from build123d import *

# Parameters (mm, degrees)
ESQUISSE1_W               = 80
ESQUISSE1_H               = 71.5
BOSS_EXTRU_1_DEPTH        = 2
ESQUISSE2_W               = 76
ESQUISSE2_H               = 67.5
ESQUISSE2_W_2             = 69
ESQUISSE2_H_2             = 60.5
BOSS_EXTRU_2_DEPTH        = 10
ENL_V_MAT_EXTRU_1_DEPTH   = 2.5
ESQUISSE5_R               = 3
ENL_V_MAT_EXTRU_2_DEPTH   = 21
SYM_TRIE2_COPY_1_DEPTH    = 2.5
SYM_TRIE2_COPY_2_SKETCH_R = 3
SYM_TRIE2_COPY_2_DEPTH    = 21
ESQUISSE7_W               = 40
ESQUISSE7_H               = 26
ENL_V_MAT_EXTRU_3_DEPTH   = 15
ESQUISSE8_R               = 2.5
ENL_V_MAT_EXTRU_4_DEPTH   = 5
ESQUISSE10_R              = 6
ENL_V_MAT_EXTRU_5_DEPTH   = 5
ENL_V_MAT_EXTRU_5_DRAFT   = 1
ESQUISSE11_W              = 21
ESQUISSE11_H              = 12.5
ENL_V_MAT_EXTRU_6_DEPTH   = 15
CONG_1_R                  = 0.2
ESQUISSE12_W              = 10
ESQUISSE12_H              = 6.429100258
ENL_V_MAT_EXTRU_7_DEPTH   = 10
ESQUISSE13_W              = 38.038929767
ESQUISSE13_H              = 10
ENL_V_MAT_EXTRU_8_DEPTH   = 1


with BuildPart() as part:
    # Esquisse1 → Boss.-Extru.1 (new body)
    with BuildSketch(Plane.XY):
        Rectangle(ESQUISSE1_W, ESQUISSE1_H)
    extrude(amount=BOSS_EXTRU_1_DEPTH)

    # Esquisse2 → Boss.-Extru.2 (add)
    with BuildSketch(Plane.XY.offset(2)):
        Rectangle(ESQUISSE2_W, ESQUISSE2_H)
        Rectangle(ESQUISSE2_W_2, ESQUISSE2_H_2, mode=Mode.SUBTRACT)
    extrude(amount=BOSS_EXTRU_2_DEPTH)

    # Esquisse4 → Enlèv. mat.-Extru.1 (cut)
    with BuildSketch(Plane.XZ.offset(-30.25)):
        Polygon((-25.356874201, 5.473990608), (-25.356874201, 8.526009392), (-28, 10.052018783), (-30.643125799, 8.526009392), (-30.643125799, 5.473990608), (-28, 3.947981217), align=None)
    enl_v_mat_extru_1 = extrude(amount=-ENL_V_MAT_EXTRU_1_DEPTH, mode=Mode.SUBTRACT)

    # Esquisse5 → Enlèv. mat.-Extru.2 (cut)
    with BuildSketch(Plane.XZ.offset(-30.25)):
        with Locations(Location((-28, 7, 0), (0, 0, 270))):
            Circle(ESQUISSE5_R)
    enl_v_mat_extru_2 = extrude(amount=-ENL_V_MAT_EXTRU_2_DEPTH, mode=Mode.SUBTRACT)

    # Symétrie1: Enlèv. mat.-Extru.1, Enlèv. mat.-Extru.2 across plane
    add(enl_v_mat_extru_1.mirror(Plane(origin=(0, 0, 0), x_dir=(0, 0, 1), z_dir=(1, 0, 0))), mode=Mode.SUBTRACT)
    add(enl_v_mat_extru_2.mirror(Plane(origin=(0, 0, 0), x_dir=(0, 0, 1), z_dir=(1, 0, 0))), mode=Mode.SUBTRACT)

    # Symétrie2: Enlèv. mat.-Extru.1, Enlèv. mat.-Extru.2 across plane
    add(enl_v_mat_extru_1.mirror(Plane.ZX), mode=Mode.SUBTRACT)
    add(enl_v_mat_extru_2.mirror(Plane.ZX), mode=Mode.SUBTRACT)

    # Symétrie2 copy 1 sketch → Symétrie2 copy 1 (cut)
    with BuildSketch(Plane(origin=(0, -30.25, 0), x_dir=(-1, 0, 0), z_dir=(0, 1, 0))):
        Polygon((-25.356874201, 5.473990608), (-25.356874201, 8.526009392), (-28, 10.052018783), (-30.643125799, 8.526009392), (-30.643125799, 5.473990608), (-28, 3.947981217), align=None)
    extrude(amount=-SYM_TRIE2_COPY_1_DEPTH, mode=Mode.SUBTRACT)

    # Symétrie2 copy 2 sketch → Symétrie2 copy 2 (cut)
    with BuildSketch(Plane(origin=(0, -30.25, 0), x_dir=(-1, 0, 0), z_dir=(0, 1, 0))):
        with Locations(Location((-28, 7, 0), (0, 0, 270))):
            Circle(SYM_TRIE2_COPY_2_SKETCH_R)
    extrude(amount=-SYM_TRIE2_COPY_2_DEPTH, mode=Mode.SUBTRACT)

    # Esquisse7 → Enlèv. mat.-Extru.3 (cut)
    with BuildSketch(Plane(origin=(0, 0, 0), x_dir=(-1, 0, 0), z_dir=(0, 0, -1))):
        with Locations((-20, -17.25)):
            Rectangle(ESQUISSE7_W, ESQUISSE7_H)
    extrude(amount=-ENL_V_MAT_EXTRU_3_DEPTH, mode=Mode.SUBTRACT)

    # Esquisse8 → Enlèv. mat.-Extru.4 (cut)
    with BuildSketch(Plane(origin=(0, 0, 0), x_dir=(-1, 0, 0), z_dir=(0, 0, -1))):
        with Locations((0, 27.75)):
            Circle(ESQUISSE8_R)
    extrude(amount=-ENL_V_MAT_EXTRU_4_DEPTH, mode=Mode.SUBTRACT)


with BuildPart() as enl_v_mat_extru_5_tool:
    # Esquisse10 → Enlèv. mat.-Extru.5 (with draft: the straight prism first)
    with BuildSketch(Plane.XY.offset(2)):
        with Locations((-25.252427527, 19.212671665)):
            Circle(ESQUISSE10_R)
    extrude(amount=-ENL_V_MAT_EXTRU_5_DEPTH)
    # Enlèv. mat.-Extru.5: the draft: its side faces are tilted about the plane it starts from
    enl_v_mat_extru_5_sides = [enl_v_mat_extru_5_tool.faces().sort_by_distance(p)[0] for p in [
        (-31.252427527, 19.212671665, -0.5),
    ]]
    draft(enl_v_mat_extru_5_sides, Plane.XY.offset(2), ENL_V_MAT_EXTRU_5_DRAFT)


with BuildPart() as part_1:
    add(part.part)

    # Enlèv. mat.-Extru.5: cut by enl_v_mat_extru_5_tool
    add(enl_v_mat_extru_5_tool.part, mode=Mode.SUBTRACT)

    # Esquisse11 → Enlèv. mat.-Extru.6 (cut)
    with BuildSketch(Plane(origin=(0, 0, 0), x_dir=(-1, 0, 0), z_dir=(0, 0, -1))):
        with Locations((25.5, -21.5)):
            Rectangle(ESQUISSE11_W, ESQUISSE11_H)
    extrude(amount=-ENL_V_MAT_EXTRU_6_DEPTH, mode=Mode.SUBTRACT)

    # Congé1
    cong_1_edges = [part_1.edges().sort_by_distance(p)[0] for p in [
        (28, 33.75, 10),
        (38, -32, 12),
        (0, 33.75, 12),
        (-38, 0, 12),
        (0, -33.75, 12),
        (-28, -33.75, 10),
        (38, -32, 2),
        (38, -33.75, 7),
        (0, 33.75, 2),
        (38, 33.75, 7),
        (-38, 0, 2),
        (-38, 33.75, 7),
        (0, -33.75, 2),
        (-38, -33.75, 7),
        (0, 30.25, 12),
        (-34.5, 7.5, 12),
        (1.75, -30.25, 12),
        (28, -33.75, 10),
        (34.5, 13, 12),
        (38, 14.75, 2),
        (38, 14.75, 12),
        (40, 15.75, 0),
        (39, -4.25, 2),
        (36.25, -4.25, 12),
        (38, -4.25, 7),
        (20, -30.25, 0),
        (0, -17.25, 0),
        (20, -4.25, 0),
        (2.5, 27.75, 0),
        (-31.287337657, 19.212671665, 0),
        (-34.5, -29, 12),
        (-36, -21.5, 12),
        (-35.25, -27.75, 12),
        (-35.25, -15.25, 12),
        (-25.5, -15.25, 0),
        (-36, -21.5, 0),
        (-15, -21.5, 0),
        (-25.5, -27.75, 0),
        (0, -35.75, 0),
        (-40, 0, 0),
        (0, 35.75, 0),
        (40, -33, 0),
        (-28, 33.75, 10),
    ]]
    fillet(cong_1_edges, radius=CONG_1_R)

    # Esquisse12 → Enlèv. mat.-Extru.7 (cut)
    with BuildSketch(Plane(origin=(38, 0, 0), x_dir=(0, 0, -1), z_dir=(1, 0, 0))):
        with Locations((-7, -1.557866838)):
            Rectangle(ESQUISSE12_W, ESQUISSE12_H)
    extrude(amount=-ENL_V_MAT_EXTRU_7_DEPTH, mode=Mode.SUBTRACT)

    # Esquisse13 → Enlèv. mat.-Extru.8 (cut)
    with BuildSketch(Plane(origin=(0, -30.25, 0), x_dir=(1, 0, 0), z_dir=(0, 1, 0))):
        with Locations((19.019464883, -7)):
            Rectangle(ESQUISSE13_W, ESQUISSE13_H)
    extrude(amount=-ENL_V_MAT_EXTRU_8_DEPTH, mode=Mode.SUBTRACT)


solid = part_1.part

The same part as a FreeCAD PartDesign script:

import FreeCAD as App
import Part
import Sketcher
Q = App.Units.Quantity


def edges_at(feature, points):
    """Names of the edges that pass closest to the given points."""
    edges = feature.Shape.Edges
    near = lambda p: min(range(len(edges)), key=lambda i: edges[i].distToShape(Part.Vertex(*p))[0])
    return sorted({f"Edge{near(p) + 1}" for p in points})


def faces_at(feature, points):
    """Names of the faces that lie closest to the given points."""
    faces = feature.Shape.Faces
    near = lambda p: min(range(len(faces)), key=lambda i: faces[i].distToShape(Part.Vertex(*p))[0])
    return sorted({f"Face{near(p) + 1}" for p in points})


def add_polygon(sketch, points):
    """Adds a closed chain of lines whose ends are joined by coincident constraints."""
    first, n = sketch.GeometryCount, len(points)
    for a, b in zip(points, points[1:] + points[:1]):
        sketch.addGeometry(Part.LineSegment(App.Vector(*a, 0), App.Vector(*b, 0)), False)
    for i in range(n):
        sketch.addConstraint(Sketcher.Constraint("Coincident", first + i, 2, first + (i + 1) % n, 1))

doc = App.newDocument("Part")
body = doc.addObject("PartDesign::Body", "Body")

# Sketch on XY plane
sketch1 = body.newObject("Sketcher::SketchObject", "Sketch")
sketch1.AttachmentSupport = (doc.getObject("XY_Plane"), [""])
sketch1.MapMode = "FlatFace"
add_polygon(sketch1, [(-40, 35.75), (-40, -35.75), (40, -35.75), (40, 35.75)])  # lines 0-3
sketch1.addConstraint([
    Sketcher.Constraint("Vertical", 0),
    Sketcher.Constraint("Horizontal", 1),
    Sketcher.Constraint("Vertical", 2),
    Sketcher.Constraint("Horizontal", 3),
    Sketcher.Constraint("Symmetric", 0, 2, 2, 2, -1, 1),
    Sketcher.Constraint("DistanceX", 1, 1, 1, 2, 80.0),
    Sketcher.Constraint("DistanceY", 0, 2, 0, 1, 71.5),
])
pad1 = body.newObject("PartDesign::Pad", "Pad")
pad1.Profile = sketch1
pad1.Length = 2

# Sketch on XY plane
sketch2 = body.newObject("Sketcher::SketchObject", "Sketch001")
sketch2.AttachmentSupport = (doc.getObject("XY_Plane"), [""])
sketch2.MapMode = "FlatFace"
sketch2.AttachmentOffset = App.Placement(App.Vector(0, 0, 2), App.Rotation())
add_polygon(sketch2, [(-38, 33.75), (-38, -33.75), (38, -33.75), (38, 33.75)])  # lines 0-3
add_polygon(sketch2, [(34.5, -30.25), (-34.5, -30.25), (-34.5, 30.25), (34.5, 30.25)])  # lines 4-7
sketch2.addConstraint([
    Sketcher.Constraint("Vertical", 0),
    Sketcher.Constraint("Horizontal", 1),
    Sketcher.Constraint("Vertical", 2),
    Sketcher.Constraint("Horizontal", 3),
    Sketcher.Constraint("Horizontal", 4),
    Sketcher.Constraint("Vertical", 5),
    Sketcher.Constraint("Horizontal", 6),
    Sketcher.Constraint("Vertical", 7),
    Sketcher.Constraint("Symmetric", 0, 2, 2, 2, -1, 1),
    Sketcher.Constraint("Symmetric", 4, 2, 6, 2, -1, 1),
    Sketcher.Constraint("DistanceX", 1, 1, 1, 2, 76.0),
    Sketcher.Constraint("DistanceX", 4, 2, 4, 1, 69.0),
    Sketcher.Constraint("DistanceY", 0, 2, 0, 1, 67.5),
    Sketcher.Constraint("DistanceY", 5, 1, 5, 2, 60.5),
])
pad2 = body.newObject("PartDesign::Pad", "Pad001")
pad2.Profile = sketch2
pad2.Length = 10

# Sketch on XZ plane
sketch3 = body.newObject("Sketcher::SketchObject", "Sketch002")
sketch3.AttachmentSupport = (doc.getObject("XZ_Plane"), [""])
sketch3.MapMode = "FlatFace"
sketch3.AttachmentOffset = App.Placement(App.Vector(0, 0, -30.25), App.Rotation())
add_polygon(sketch3, [(-25.356874, 5.473991), (-25.356874, 8.526009), (-28, 10.052019), (-30.643126, 8.526009), (-30.643126, 5.473991), (-28, 3.947981)])  # lines 0-5
sketch3.addConstraint([
    Sketcher.Constraint("Vertical", 0),
    Sketcher.Constraint("Vertical", 3),
    Sketcher.Constraint("Parallel", 1, 4),
    Sketcher.Constraint("Parallel", 2, 5),
    Sketcher.Constraint("Horizontal", 0, 2, 2, 2),
    Sketcher.Constraint("Horizontal", 3, 2, 5, 2),
    Sketcher.Constraint("Vertical", 1, 2, 4, 2),
    Sketcher.Constraint("Angle", 1, Q("150 deg")),
    Sketcher.Constraint("DistanceX", 1, 2, -1, 1, 28.0),
    Sketcher.Constraint("DistanceY", 0, 1, 0, 2, 3.052019),
    Sketcher.Constraint("Distance", 1, 3.052019),
    Sketcher.Constraint("DistanceY", -1, 1, 0, 2, 8.526009),
])
pocket1 = body.newObject("PartDesign::Pocket", "Pocket")
pocket1.Profile = sketch3
pocket1.Length = 2.5

# Sketch on XZ plane
sketch4 = body.newObject("Sketcher::SketchObject", "Sketch003")
sketch4.AttachmentSupport = (doc.getObject("XZ_Plane"), [""])
sketch4.MapMode = "FlatFace"
sketch4.AttachmentOffset = App.Placement(App.Vector(0, 0, -30.25), App.Rotation())
sketch4.addGeometry(Part.Circle(App.Vector(-28, 7, 0), App.Vector(0, 0, 1), 3), False)
sketch4.addConstraint([
    Sketcher.Constraint("Diameter", 0, 6.0),
    Sketcher.Constraint("DistanceX", 0, 3, -1, 1, 28.0),
    Sketcher.Constraint("DistanceY", -1, 1, 0, 3, 7.0),
])
pocket2 = body.newObject("PartDesign::Pocket", "Pocket001")
pocket2.Profile = sketch4
pocket2.Length = 21
doc.recompute()

mirrored = body.newObject("PartDesign::Mirrored", "Mirrored")
mirrored.Originals = [pocket1, pocket2]
mirrored.MirrorPlane = (doc.getObject("YZ_Plane"), [""])
body.Tip = mirrored
doc.recompute()

mirrored2 = body.newObject("PartDesign::Mirrored", "Mirrored001")
mirrored2.Originals = [pocket1, pocket2]
mirrored2.MirrorPlane = (doc.getObject("XZ_Plane"), [""])
body.Tip = mirrored2

# Sketch on XZ plane
sketch5 = body.newObject("Sketcher::SketchObject", "Sketch004")
sketch5.AttachmentSupport = (doc.getObject("XZ_Plane"), [""])
sketch5.MapMode = "FlatFace"
sketch5.AttachmentOffset = App.Placement(App.Vector(0, 0, 30.25), App.Rotation())
add_polygon(sketch5, [(25.356874, 5.473991), (25.356874, 8.526009), (28, 10.052019), (30.643126, 8.526009), (30.643126, 5.473991), (28, 3.947981)])  # lines 0-5
sketch5.addConstraint([
    Sketcher.Constraint("Vertical", 0),
    Sketcher.Constraint("Vertical", 3),
    Sketcher.Constraint("Parallel", 1, 4),
    Sketcher.Constraint("Parallel", 2, 5),
    Sketcher.Constraint("Horizontal", 0, 2, 2, 2),
    Sketcher.Constraint("Horizontal", 3, 2, 5, 2),
    Sketcher.Constraint("Vertical", 1, 2, 4, 2),
    Sketcher.Constraint("Angle", 1, Q("30 deg")),
    Sketcher.Constraint("DistanceX", -1, 1, 1, 2, 28.0),
    Sketcher.Constraint("DistanceY", 0, 1, 0, 2, 3.052019),
    Sketcher.Constraint("Distance", 1, 3.052019),
    Sketcher.Constraint("DistanceY", -1, 1, 0, 2, 8.526009),
])
pocket3 = body.newObject("PartDesign::Pocket", "Pocket002")
pocket3.Profile = sketch5
pocket3.Length = 2.5
pocket3.Reversed = True

# Sketch on XZ plane
sketch6 = body.newObject("Sketcher::SketchObject", "Sketch005")
sketch6.AttachmentSupport = (doc.getObject("XZ_Plane"), [""])
sketch6.MapMode = "FlatFace"
sketch6.AttachmentOffset = App.Placement(App.Vector(0, 0, 30.25), App.Rotation())
sketch6.addGeometry(Part.Circle(App.Vector(28, 7, 0), App.Vector(0, 0, 1), 3), False)
sketch6.addConstraint([
    Sketcher.Constraint("Diameter", 0, 6.0),
    Sketcher.Constraint("DistanceX", -1, 1, 0, 3, 28.0),
    Sketcher.Constraint("DistanceY", -1, 1, 0, 3, 7.0),
])
pocket4 = body.newObject("PartDesign::Pocket", "Pocket003")
pocket4.Profile = sketch6
pocket4.Length = 21
pocket4.Reversed = True

# Sketch on XY plane
sketch7 = body.newObject("Sketcher::SketchObject", "Sketch006")
sketch7.AttachmentSupport = (doc.getObject("XY_Plane"), [""])
sketch7.MapMode = "FlatFace"
add_polygon(sketch7, [(40, -4.25), (40, -30.25), (0, -30.25), (0, -4.25)])  # lines 0-3
sketch7.addConstraint([
    Sketcher.Constraint("Vertical", 0),
    Sketcher.Constraint("Horizontal", 1),
    Sketcher.Constraint("Vertical", 2),
    Sketcher.Constraint("Horizontal", 3),
    Sketcher.Constraint("PointOnObject", 1, 2, -2),
    Sketcher.Constraint("DistanceX", 1, 2, 1, 1, 40.0),
    Sketcher.Constraint("DistanceY", 0, 2, 0, 1, 26.0),
    Sketcher.Constraint("DistanceY", 0, 2, -1, 1, 30.25),
])
pocket5 = body.newObject("PartDesign::Pocket", "Pocket004")
pocket5.Profile = sketch7
pocket5.Length = 15
pocket5.Reversed = True

# Sketch on XY plane
sketch8 = body.newObject("Sketcher::SketchObject", "Sketch007")
sketch8.AttachmentSupport = (doc.getObject("XY_Plane"), [""])
sketch8.MapMode = "FlatFace"
sketch8.addGeometry(Part.Circle(App.Vector(0, 27.75, 0), App.Vector(0, 0, 1), 2.5), False)
sketch8.addConstraint([
    Sketcher.Constraint("PointOnObject", 0, 3, -2),
    Sketcher.Constraint("Diameter", 0, 5.0),
    Sketcher.Constraint("DistanceY", -1, 1, 0, 3, 27.75),
])
pocket6 = body.newObject("PartDesign::Pocket", "Pocket005")
pocket6.Profile = sketch8
pocket6.Length = 5
pocket6.Reversed = True
body2 = doc.addObject("PartDesign::Body", "Body001")

# Sketch on XY plane
sketch9 = body2.newObject("Sketcher::SketchObject", "Sketch008")
sketch9.AttachmentSupport = (doc.getObject("XY_Plane001"), [""])
sketch9.MapMode = "FlatFace"
sketch9.AttachmentOffset = App.Placement(App.Vector(0, 0, 2), App.Rotation())
sketch9.addGeometry(Part.Circle(App.Vector(-25.252428, 19.212672, 0), App.Vector(0, 0, 1), 6), False)
sketch9.addConstraint([
    Sketcher.Constraint("Diameter", 0, 12.0),
    Sketcher.Constraint("DistanceY", -1, 1, 0, 3, 19.212672),
    Sketcher.Constraint("DistanceX", 0, 3, -1, 1, 25.252428),
])
pad3 = body2.newObject("PartDesign::Pad", "Pad002")
pad3.Profile = sketch9
pad3.Length = 5
pad3.Reversed = True
doc.recompute()

datumplane = body2.newObject("PartDesign::Plane", "DatumPlane")
datumplane.AttachmentSupport = (doc.getObject("XY_Plane001"), [""])
datumplane.MapMode = "FlatFace"
datumplane.AttachmentOffset = App.Placement(App.Vector(0, 0, 2), App.Rotation())
draft = body2.newObject("PartDesign::Draft", "Draft")
draft.Base = (pad3, faces_at(pad3, [(-31.252, 19.213, -0.5)]))
draft.NeutralPlane = (datumplane, [""])
draft.Angle = 1
draft.Reversed = False
doc.recompute()

boolean = body.newObject("PartDesign::Boolean", "Boolean")
boolean.Type = "Cut"
boolean.addObjects([body2])

# Sketch on XY plane
sketch10 = body.newObject("Sketcher::SketchObject", "Sketch009")
sketch10.AttachmentSupport = (doc.getObject("XY_Plane"), [""])
sketch10.MapMode = "FlatFace"
add_polygon(sketch10, [(-15, -15.25), (-15, -27.75), (-36, -27.75), (-36, -15.25)])  # lines 0-3
sketch10.addConstraint([
    Sketcher.Constraint("Vertical", 0),
    Sketcher.Constraint("Horizontal", 1),
    Sketcher.Constraint("Vertical", 2),
    Sketcher.Constraint("Horizontal", 3),
    Sketcher.Constraint("DistanceX", 1, 2, 1, 1, 21.0),
    Sketcher.Constraint("DistanceY", 0, 2, 0, 1, 12.5),
    Sketcher.Constraint("DistanceX", 0, 2, -1, 1, 15.0),
    Sketcher.Constraint("DistanceY", 0, 2, -1, 1, 27.75),
])
pocket7 = body.newObject("PartDesign::Pocket", "Pocket006")
pocket7.Profile = sketch10
pocket7.Length = 15
pocket7.Reversed = True
doc.recompute()

fillet = body.newObject("PartDesign::Fillet", "Fillet")
fillet.Base = (pocket7, edges_at(pocket7, [
    (28, 33.75, 10),
    (38, -32, 12),
    (0, 33.75, 12),
    (-38, 0, 12),
    (0, -33.75, 12),
    (-28, -33.75, 10),
    (38, -32, 2),
    (38, -33.75, 7),
    (0, 33.75, 2),
    (38, 33.75, 7),
    (-38, 0, 2),
    (-38, 33.75, 7),
    (0, -33.75, 2),
    (-38, -33.75, 7),
    (0, 30.25, 12),
    (-34.5, 7.5, 12),
    (1.75, -30.25, 12),
    (28, -33.75, 10),
    (34.5, 13, 12),
    (38, 14.75, 2),
    (38, 14.75, 12),
    (40, 15.75, 0),
    (39, -4.25, 2),
    (36.25, -4.25, 12),
    (38, -4.25, 7),
    (20, -30.25, 0),
    (0, -17.25, 0),
    (20, -4.25, 0),
    (2.5, 27.75, 0),
    (-31.287, 19.213, 0),
    (-34.5, -29, 12),
    (-36, -21.5, 12),
    (-35.25, -27.75, 12),
    (-35.25, -15.25, 12),
    (-25.5, -15.25, 0),
    (-36, -21.5, 0),
    (-15, -21.5, 0),
    (-25.5, -27.75, 0),
    (0, -35.75, 0),
    (-40, 0, 0),
    (0, 35.75, 0),
    (40, -33, 0),
    (-28, 33.75, 10),
]))
fillet.Radius = 0.2

# Sketch on YZ plane
sketch11 = body.newObject("Sketcher::SketchObject", "Sketch010")
sketch11.AttachmentSupport = (doc.getObject("YZ_Plane"), [""])
sketch11.MapMode = "FlatFace"
sketch11.AttachmentOffset = App.Placement(App.Vector(0, 0, 38), App.Rotation())
add_polygon(sketch11, [(1.656683, 12), (-4.772417, 12), (-4.772417, 2), (1.656683, 2)])  # lines 0-3
sketch11.addConstraint([
    Sketcher.Constraint("Horizontal", 0),
    Sketcher.Constraint("Vertical", 1),
    Sketcher.Constraint("Horizontal", 2),
    Sketcher.Constraint("Vertical", 3),
    Sketcher.Constraint("DistanceY", 1, 2, 1, 1, 10.0),
    Sketcher.Constraint("DistanceY", -1, 1, 0, 2, 12.0),
    Sketcher.Constraint("DistanceX", 0, 2, 0, 1, 6.4291),
    Sketcher.Constraint("DistanceX", 0, 2, -1, 1, 4.772417),
])
pocket8 = body.newObject("PartDesign::Pocket", "Pocket007")
pocket8.Profile = sketch11
pocket8.Length = 10

# Sketch on XZ plane
sketch12 = body.newObject("Sketcher::SketchObject", "Sketch011")
sketch12.AttachmentSupport = (doc.getObject("XZ_Plane"), [""])
sketch12.MapMode = "FlatFace"
sketch12.AttachmentOffset = App.Placement(App.Vector(0, 0, 30.25), App.Rotation())
add_polygon(sketch12, [(0, 2), (0, 12), (38.03893, 12), (38.03893, 2)])  # lines 0-3
sketch12.addConstraint([
    Sketcher.Constraint("Vertical", 0),
    Sketcher.Constraint("Horizontal", 1),
    Sketcher.Constraint("Vertical", 2),
    Sketcher.Constraint("Horizontal", 3),
    Sketcher.Constraint("PointOnObject", 0, 2, -2),
    Sketcher.Constraint("DistanceY", 0, 1, 0, 2, 10.0),
    Sketcher.Constraint("DistanceY", -1, 1, 0, 2, 12.0),
    Sketcher.Constraint("DistanceX", 1, 1, 1, 2, 38.03893),
])
pocket9 = body.newObject("PartDesign::Pocket", "Pocket008")
pocket9.Profile = sketch12
pocket9.Length = 1
pocket9.Reversed = True

doc.recompute()
